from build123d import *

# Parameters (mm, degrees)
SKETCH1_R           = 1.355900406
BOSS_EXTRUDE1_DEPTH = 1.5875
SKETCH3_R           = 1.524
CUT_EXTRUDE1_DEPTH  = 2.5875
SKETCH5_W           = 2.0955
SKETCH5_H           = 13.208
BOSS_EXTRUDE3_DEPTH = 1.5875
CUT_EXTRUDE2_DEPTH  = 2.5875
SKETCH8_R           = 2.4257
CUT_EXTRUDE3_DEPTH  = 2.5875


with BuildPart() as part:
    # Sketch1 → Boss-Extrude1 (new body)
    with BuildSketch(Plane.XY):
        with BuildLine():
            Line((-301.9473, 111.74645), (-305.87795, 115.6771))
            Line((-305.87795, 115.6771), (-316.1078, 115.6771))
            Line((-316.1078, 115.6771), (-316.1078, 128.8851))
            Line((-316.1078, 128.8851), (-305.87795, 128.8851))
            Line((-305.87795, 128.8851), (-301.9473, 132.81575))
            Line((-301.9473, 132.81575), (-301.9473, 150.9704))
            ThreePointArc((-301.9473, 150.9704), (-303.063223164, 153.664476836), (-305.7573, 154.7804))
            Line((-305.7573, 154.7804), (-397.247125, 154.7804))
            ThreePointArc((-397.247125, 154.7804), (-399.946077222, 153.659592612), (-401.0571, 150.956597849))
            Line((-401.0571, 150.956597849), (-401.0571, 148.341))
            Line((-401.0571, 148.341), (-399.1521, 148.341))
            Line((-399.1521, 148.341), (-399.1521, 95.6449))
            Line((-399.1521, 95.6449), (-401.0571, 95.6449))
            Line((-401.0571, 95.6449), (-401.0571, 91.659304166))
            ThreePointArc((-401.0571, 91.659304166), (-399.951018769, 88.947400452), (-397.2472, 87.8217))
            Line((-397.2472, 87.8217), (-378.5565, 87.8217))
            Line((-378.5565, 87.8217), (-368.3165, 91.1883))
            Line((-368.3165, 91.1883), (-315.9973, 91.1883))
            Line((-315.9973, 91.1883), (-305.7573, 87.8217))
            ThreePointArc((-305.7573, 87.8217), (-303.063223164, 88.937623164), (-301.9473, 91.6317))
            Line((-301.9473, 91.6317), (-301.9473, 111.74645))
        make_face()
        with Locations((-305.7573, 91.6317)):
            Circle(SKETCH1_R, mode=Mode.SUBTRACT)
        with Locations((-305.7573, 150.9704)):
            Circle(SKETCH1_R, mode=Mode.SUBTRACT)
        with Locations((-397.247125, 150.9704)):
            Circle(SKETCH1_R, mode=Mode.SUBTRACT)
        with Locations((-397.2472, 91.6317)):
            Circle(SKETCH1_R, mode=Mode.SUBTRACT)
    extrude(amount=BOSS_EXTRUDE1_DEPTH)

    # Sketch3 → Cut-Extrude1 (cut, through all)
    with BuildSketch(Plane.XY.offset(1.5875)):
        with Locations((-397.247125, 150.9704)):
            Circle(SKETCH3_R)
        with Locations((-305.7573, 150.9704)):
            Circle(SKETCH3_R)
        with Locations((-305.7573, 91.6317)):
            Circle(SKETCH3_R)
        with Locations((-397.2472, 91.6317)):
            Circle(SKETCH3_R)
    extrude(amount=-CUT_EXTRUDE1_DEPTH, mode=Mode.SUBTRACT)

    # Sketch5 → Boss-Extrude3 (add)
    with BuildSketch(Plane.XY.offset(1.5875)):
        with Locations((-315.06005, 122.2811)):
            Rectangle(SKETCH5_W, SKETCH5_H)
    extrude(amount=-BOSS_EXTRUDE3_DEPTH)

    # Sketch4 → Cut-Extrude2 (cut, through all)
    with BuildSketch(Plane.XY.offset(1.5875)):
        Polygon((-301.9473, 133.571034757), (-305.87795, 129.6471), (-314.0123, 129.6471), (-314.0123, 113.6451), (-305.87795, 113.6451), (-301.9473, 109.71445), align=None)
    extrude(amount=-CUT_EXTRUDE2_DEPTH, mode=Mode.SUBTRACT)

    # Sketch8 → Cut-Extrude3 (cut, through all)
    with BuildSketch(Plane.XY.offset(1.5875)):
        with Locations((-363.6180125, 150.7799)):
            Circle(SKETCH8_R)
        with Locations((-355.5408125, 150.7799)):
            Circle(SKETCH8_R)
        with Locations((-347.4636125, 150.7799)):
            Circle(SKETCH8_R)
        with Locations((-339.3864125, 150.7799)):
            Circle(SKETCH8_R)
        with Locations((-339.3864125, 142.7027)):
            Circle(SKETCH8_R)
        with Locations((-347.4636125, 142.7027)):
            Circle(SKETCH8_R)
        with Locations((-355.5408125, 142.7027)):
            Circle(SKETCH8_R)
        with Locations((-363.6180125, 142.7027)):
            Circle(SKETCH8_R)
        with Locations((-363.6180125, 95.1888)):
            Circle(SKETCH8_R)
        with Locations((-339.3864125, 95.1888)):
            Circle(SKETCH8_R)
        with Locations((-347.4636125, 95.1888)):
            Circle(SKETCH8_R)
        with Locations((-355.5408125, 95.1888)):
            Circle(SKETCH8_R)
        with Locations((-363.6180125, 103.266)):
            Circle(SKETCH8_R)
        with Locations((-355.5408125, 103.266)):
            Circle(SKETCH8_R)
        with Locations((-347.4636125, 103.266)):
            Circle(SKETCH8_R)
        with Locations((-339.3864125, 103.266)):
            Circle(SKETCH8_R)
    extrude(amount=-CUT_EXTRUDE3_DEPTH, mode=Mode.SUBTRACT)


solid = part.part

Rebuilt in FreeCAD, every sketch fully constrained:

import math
import FreeCAD as App
import Part
import Sketcher

V = App.Vector
Q = App.Units.Quantity

doc = App.newDocument("Part")
body = doc.addObject("PartDesign::Body", "Body")

# Sketch on XY plane
sketch1 = doc.addObject("Sketcher::SketchObject", "Sketch")
body.addObject(sketch1)
sketch1.AttachmentSupport = (doc.XY_Plane, [""])
sketch1.MapMode = "FlatFace"
sketch1.addGeometry([
    Part.LineSegment(V(-301.9473, 111.74645, 0), V(-305.87795, 115.6771, 0)),  # 0
    Part.LineSegment(V(-305.87795, 115.6771, 0), V(-316.1078, 115.6771, 0)),  # 1
    Part.LineSegment(V(-316.1078, 115.6771, 0), V(-316.1078, 128.8851, 0)),  # 2
    Part.LineSegment(V(-316.1078, 128.8851, 0), V(-305.87795, 128.8851, 0)),  # 3
    Part.LineSegment(V(-305.87795, 128.8851, 0), V(-301.9473, 132.81575, 0)),  # 4
    Part.LineSegment(V(-301.9473, 132.81575, 0), V(-301.9473, 150.9704, 0)),  # 5
    Part.ArcOfCircle(Part.Circle(V(-305.7573, 150.9704, 0), V(0, 0, 1), 3.81), math.radians(0), math.radians(90)),  # 6
    Part.LineSegment(V(-305.7573, 154.7804, 0), V(-397.247125, 154.7804, 0)),  # 7
    Part.ArcOfCircle(Part.Circle(V(-397.247125, 150.9704, 0), V(0, 0, 1), 3.81), math.radians(90), math.radians(180.207561)),  # 8
    Part.LineSegment(V(-401.0571, 150.956598, 0), V(-401.0571, 148.341, 0)),  # 9
    Part.LineSegment(V(-401.0571, 148.341, 0), V(-399.1521, 148.341, 0)),  # 10
    Part.LineSegment(V(-399.1521, 148.341, 0), V(-399.1521, 95.6449, 0)),  # 11
    Part.LineSegment(V(-399.1521, 95.6449, 0), V(-401.0571, 95.6449, 0)),  # 12
    Part.LineSegment(V(-401.0571, 95.6449, 0), V(-401.0571, 91.659304, 0)),  # 13
    Part.ArcOfCircle(Part.Circle(V(-397.2472, 91.6317, 0), V(0, 0, 1), 3.81), math.radians(179.584878), math.radians(270)),  # 14
    Part.LineSegment(V(-397.2472, 87.8217, 0), V(-378.5565, 87.8217, 0)),  # 15
    Part.LineSegment(V(-378.5565, 87.8217, 0), V(-368.3165, 91.1883, 0)),  # 16
    Part.LineSegment(V(-368.3165, 91.1883, 0), V(-315.9973, 91.1883, 0)),  # 17
    Part.LineSegment(V(-315.9973, 91.1883, 0), V(-305.7573, 87.8217, 0)),  # 18
    Part.ArcOfCircle(Part.Circle(V(-305.7573, 91.6317, 0), V(0, 0, 1), 3.81), math.radians(-90), math.radians(0)),  # 19
    Part.LineSegment(V(-301.9473, 91.6317, 0), V(-301.9473, 111.74645, 0)),  # 20
    Part.Circle(V(-397.2472, 91.6317, 0), V(0, 0, 1), 1.3559),  # 21
    Part.Circle(V(-305.7573, 91.6317, 0), V(0, 0, 1), 1.3559),  # 22
    Part.Circle(V(-397.247125, 150.9704, 0), V(0, 0, 1), 1.3559),  # 23
    Part.Circle(V(-305.7573, 150.9704, 0), V(0, 0, 1), 1.3559),  # 24
], False)
sketch1.addConstraint([
    Sketcher.Constraint("Coincident", 0, 2, 1, 1),
    Sketcher.Constraint("Coincident", 1, 2, 2, 1),
    Sketcher.Constraint("Coincident", 2, 2, 3, 1),
    Sketcher.Constraint("Coincident", 3, 2, 4, 1),
    Sketcher.Constraint("Coincident", 4, 2, 5, 1),
    Sketcher.Constraint("Tangent", 5, 2, 6, 1),
    Sketcher.Constraint("Tangent", 6, 2, 7, 1),
    Sketcher.Constraint("Tangent", 7, 2, 8, 1),
    Sketcher.Constraint("Coincident", 8, 2, 9, 1),
    Sketcher.Constraint("Coincident", 9, 2, 10, 1),
    Sketcher.Constraint("Coincident", 10, 2, 11, 1),
    Sketcher.Constraint("Coincident", 11, 2, 12, 1),
    Sketcher.Constraint("Coincident", 12, 2, 13, 1),
    Sketcher.Constraint("Coincident", 13, 2, 14, 1),
    Sketcher.Constraint("Tangent", 14, 2, 15, 1),
    Sketcher.Constraint("Coincident", 15, 2, 16, 1),
    Sketcher.Constraint("Coincident", 16, 2, 17, 1),
    Sketcher.Constraint("Coincident", 17, 2, 18, 1),
    Sketcher.Constraint("Coincident", 18, 2, 19, 1),
    Sketcher.Constraint("Tangent", 19, 2, 20, 1),
    Sketcher.Constraint("Coincident", 20, 2, 0, 1),
    Sketcher.Constraint("Horizontal", 1),
    Sketcher.Constraint("Vertical", 2),
    Sketcher.Constraint("Horizontal", 3),
    Sketcher.Constraint("Vertical", 5),
    Sketcher.Constraint("Horizontal", 7),
    Sketcher.Constraint("Vertical", 9),
    Sketcher.Constraint("Horizontal", 10),
    Sketcher.Constraint("Vertical", 11),
    Sketcher.Constraint("Horizontal", 12),
    Sketcher.Constraint("Vertical", 13),
    Sketcher.Constraint("Horizontal", 15),
    Sketcher.Constraint("Horizontal", 17),
    Sketcher.Constraint("Vertical", 20),
    Sketcher.Constraint("Coincident", 21, 3, 14, 3),
    Sketcher.Constraint("Coincident", 22, 3, 19, 3),
    Sketcher.Constraint("Coincident", 23, 3, 8, 3),
    Sketcher.Constraint("Coincident", 24, 3, 6, 3),
    Sketcher.Constraint("Equal", 6, 8),
    Sketcher.Constraint("Equal", 8, 14),
    Sketcher.Constraint("Equal", 14, 19),
    Sketcher.Constraint("Equal", 21, 22),
    Sketcher.Constraint("Equal", 22, 23),
    Sketcher.Constraint("Equal", 23, 24),
    Sketcher.Constraint("Perpendicular", 0, 4),
    Sketcher.Constraint("Horizontal", 14, 3, 19, 3),
    Sketcher.Constraint("Vertical", 6, 3, 19, 3),
    Sketcher.Constraint("Vertical", 0, 2, 3, 2),
    Sketcher.Constraint("Vertical", 9, 2, 12, 2),
    Sketcher.Constraint("Vertical", 6, 2, 18, 2),
    Sketcher.Constraint("Equal", 0, 4),
    Sketcher.Constraint("Equal", 16, 18),
    Sketcher.Constraint("Radius", 6, Q("0.15 in")),
    Sketcher.Constraint("DistanceY", 2, 1, 2, 2, Q("0.52 in")),
    Sketcher.Constraint("Diameter", 21, Q("2.711801 mm")),
    Sketcher.Constraint("DistanceX", 10, 1, 10, 2, Q("0.075 in")),
    Sketcher.Constraint("DistanceY", 14, 3, 11, 2, Q("0.158 in")),
    Sketcher.Constraint("DistanceX", 11, 2, 16, 2, Q("1.214 in")),
    Sketcher.Constraint("DistanceX", 15, 1, 15, 2, Q("18.6907 mm")),
    Sketcher.Constraint("DistanceX", 17, 1, 17, 2, Q("52.3192 mm")),
    Sketcher.Constraint("DistanceY", 11, 2, 11, 1, Q("52.6961 mm")),
    Sketcher.Constraint("DistanceY", 0, 2, 6, 3, Q("1.3895 in")),
    Sketcher.Constraint("DistanceX", 1, 2, 19, 3, Q("0.4075 in")),
    Sketcher.Constraint("DistanceX", 1, 2, 1, 1, Q("10.22985 mm")),
    Sketcher.Constraint("DistanceY", 20, 1, 20, 2, Q("20.11475 mm")),
    Sketcher.Constraint("DistanceX", 6, 3, -1, 1, Q("305.7573 mm")),
    Sketcher.Constraint("DistanceY", -1, 1, 6, 3, Q("150.9704 mm")),
    Sketcher.Constraint("DistanceX", 14, 3, -1, 1, Q("397.2472 mm")),
    Sketcher.Constraint("DistanceY", -1, 1, 16, 2, Q("91.1883 mm")),
    Sketcher.Constraint("DistanceX", 7, 2, 7, 1, Q("91.489825 mm")),
])
pad1 = doc.addObject("PartDesign::Pad", "Pad")
body.addObject(pad1)
pad1.Profile = sketch1
pad1.Length = Q("0.0625 in")

# Sketch on XY plane
sketch2 = doc.addObject("Sketcher::SketchObject", "Sketch001")
body.addObject(sketch2)
sketch2.AttachmentSupport = (doc.XY_Plane, [""])
sketch2.MapMode = "FlatFace"
sketch2.AttachmentOffset = App.Placement(V(0, 0, 0.0625 * 25.4), App.Rotation())
sketch2.addGeometry([
    Part.Circle(V(-397.247125, 150.9704, 0), V(0, 0, 1), 1.524),
    Part.Circle(V(-305.7573, 150.9704, 0), V(0, 0, 1), 1.524),
    Part.Circle(V(-305.7573, 91.6317, 0), V(0, 0, 1), 1.524),
    Part.Circle(V(-397.2472, 91.6317, 0), V(0, 0, 1), 1.524),
], False)
sketch2.addConstraint([
    Sketcher.Constraint("Equal", 0, 1),
    Sketcher.Constraint("Equal", 1, 2),
    Sketcher.Constraint("Equal", 2, 3),
    Sketcher.Constraint("Horizontal", 0, 3, 1, 3),
    Sketcher.Constraint("Horizontal", 2, 3, 3, 3),
    Sketcher.Constraint("Vertical", 1, 3, 2, 3),
    Sketcher.Constraint("Diameter", 0, Q("0.12 in")),
    Sketcher.Constraint("DistanceY", -1, 1, 0, 3, Q("150.9704 mm")),
    Sketcher.Constraint("DistanceX", 1, 3, -1, 1, Q("305.7573 mm")),
    Sketcher.Constraint("DistanceY", -1, 1, 2, 3, Q("91.6317 mm")),
    Sketcher.Constraint("DistanceX", 3, 3, -1, 1, Q("397.2472 mm")),
    Sketcher.Constraint("DistanceX", 0, 3, -1, 1, Q("397.247125 mm")),
])
pocket1 = doc.addObject("PartDesign::Pocket", "Pocket")
body.addObject(pocket1)
pocket1.Profile = sketch2
pocket1.Type = "ThroughAll"

# Sketch on XY plane
sketch3 = doc.addObject("Sketcher::SketchObject", "Sketch002")
body.addObject(sketch3)
sketch3.AttachmentSupport = (doc.XY_Plane, [""])
sketch3.MapMode = "FlatFace"
sketch3.AttachmentOffset = App.Placement(V(0, 0, 0.0625 * 25.4), App.Rotation())
sketch3.addGeometry([
    Part.LineSegment(V(-316.1078, 128.8851, 0), V(-316.1078, 115.6771, 0)),
    Part.LineSegment(V(-316.1078, 115.6771, 0), V(-314.0123, 115.6771, 0)),
    Part.LineSegment(V(-314.0123, 115.6771, 0), V(-314.0123, 128.8851, 0)),
    Part.LineSegment(V(-314.0123, 128.8851, 0), V(-316.1078, 128.8851, 0)),
], False)
sketch3.addConstraint([
    Sketcher.Constraint("Coincident", 0, 2, 1, 1),
    Sketcher.Constraint("Coincident", 1, 2, 2, 1),
    Sketcher.Constraint("Coincident", 2, 2, 3, 1),
    Sketcher.Constraint("Coincident", 3, 2, 0, 1),
    Sketcher.Constraint("Vertical", 0),
    Sketcher.Constraint("Horizontal", 1),
    Sketcher.Constraint("Vertical", 2),
    Sketcher.Constraint("Horizontal", 3),
    Sketcher.Constraint("DistanceY", 0, 2, 0, 1, Q("0.52 in")),
    Sketcher.Constraint("DistanceX", 1, 1, 1, 2, Q("0.0825 in")),
    Sketcher.Constraint("DistanceX", 0, 2, -1, 1, Q("316.1078 mm")),
    Sketcher.Constraint("DistanceY", -1, 1, 0, 2, Q("115.6771 mm")),
])
pad2 = doc.addObject("PartDesign::Pad", "Pad001")
body.addObject(pad2)
pad2.Profile = sketch3
pad2.Length = Q("0.0625 in")
pad2.Reversed = True

# Sketch on XY plane
sketch4 = doc.addObject("Sketcher::SketchObject", "Sketch003")
body.addObject(sketch4)
sketch4.AttachmentSupport = (doc.XY_Plane, [""])
sketch4.MapMode = "FlatFace"
sketch4.AttachmentOffset = App.Placement(V(0, 0, 0.0625 * 25.4), App.Rotation())
sketch4.addGeometry([
    Part.LineSegment(V(-301.9473, 133.571035, 0), V(-305.87795, 129.6471, 0)),  # 0
    Part.LineSegment(V(-305.87795, 129.6471, 0), V(-314.0123, 129.6471, 0)),  # 1
    Part.LineSegment(V(-314.0123, 129.6471, 0), V(-314.0123, 113.6451, 0)),  # 2
    Part.LineSegment(V(-314.0123, 113.6451, 0), V(-305.87795, 113.6451, 0)),  # 3
    Part.LineSegment(V(-305.87795, 113.6451, 0), V(-301.9473, 109.71445, 0)),  # 4
    Part.LineSegment(V(-301.9473, 109.71445, 0), V(-301.9473, 133.571035, 0)),  # 5
], False)
sketch4.addConstraint([
    Sketcher.Constraint("Coincident", 0, 2, 1, 1),
    Sketcher.Constraint("Coincident", 1, 2, 2, 1),
    Sketcher.Constraint("Coincident", 2, 2, 3, 1),
    Sketcher.Constraint("Coincident", 3, 2, 4, 1),
    Sketcher.Constraint("Coincident", 4, 2, 5, 1),
    Sketcher.Constraint("Coincident", 5, 2, 0, 1),
    Sketcher.Constraint("Horizontal", 1),
    Sketcher.Constraint("Vertical", 2),
    Sketcher.Constraint("Horizontal", 3),
    Sketcher.Constraint("Vertical", 5),
    Sketcher.Constraint("Vertical", 0, 2, 3, 2),
    Sketcher.Constraint("Angle", 4, Q("-45 deg")),
    Sketcher.Constraint("DistanceY", 2, 2, 2, 1, Q("0.63 in")),
    Sketcher.Constraint("DistanceX", 2, 2, 4, 2, Q("0.475 in")),
    Sketcher.Constraint("DistanceX", 1, 2, 1, 1, Q("8.13435 mm")),
    Sketcher.Constraint("DistanceY", -1, 1, 0, 2, Q("129.6471 mm")),
    Sketcher.Constraint("DistanceX", 1, 2, -1, 1, Q("314.0123 mm")),
    Sketcher.Constraint("DistanceY", 5, 1, 5, 2, Q("23.856585 mm")),
])
pocket2 = doc.addObject("PartDesign::Pocket", "Pocket001")
body.addObject(pocket2)
pocket2.Profile = sketch4
pocket2.Type = "ThroughAll"

# Sketch on XY plane
sketch5 = doc.addObject("Sketcher::SketchObject", "Sketch004")
body.addObject(sketch5)
sketch5.AttachmentSupport = (doc.XY_Plane, [""])
sketch5.MapMode = "FlatFace"
sketch5.AttachmentOffset = App.Placement(V(0, 0, 0.0625 * 25.4), App.Rotation())
sketch5.addGeometry([
    Part.Circle(V(-363.618013, 150.7799, 0), V(0, 0, 1), 2.4257),  # 0
    Part.Circle(V(-355.540813, 150.7799, 0), V(0, 0, 1), 2.4257),  # 1
    Part.Circle(V(-347.463613, 150.7799, 0), V(0, 0, 1), 2.4257),  # 2
    Part.Circle(V(-339.386413, 150.7799, 0), V(0, 0, 1), 2.4257),  # 3
    Part.Circle(V(-339.386413, 142.7027, 0), V(0, 0, 1), 2.4257),  # 4
    Part.Circle(V(-347.463613, 142.7027, 0), V(0, 0, 1), 2.4257),  # 5
    Part.Circle(V(-355.540813, 142.7027, 0), V(0, 0, 1), 2.4257),  # 6
    Part.Circle(V(-363.618013, 142.7027, 0), V(0, 0, 1), 2.4257),  # 7
    Part.Circle(V(-363.618013, 95.1888, 0), V(0, 0, 1), 2.4257),  # 8
    Part.Circle(V(-339.386413, 95.1888, 0), V(0, 0, 1), 2.4257),  # 9
    Part.Circle(V(-347.463613, 95.1888, 0), V(0, 0, 1), 2.4257),  # 10
    Part.Circle(V(-355.540813, 95.1888, 0), V(0, 0, 1), 2.4257),  # 11
    Part.Circle(V(-363.618013, 103.266, 0), V(0, 0, 1), 2.4257),  # 12
    Part.Circle(V(-355.540813, 103.266, 0), V(0, 0, 1), 2.4257),  # 13
    Part.Circle(V(-347.463613, 103.266, 0), V(0, 0, 1), 2.4257),  # 14
    Part.Circle(V(-339.386413, 103.266, 0), V(0, 0, 1), 2.4257),  # 15
], False)
sketch5.addConstraint([
    Sketcher.Constraint("Equal", 0, 1),
    Sketcher.Constraint("Equal", 1, 2),
    Sketcher.Constraint("Equal", 2, 3),
    Sketcher.Constraint("Equal", 3, 4),
    Sketcher.Constraint("Equal", 4, 5),
    Sketcher.Constraint("Equal", 5, 6),
    Sketcher.Constraint("Equal", 6, 7),
    Sketcher.Constraint("Equal", 7, 8),
    Sketcher.Constraint("Equal", 8, 9),
    Sketcher.Constraint("Equal", 9, 10),
    Sketcher.Constraint("Equal", 10, 11),
    Sketcher.Constraint("Equal", 11, 12),
    Sketcher.Constraint("Equal", 12, 13),
    Sketcher.Constraint("Equal", 13, 14),
    Sketcher.Constraint("Equal", 14, 15),
    Sketcher.Constraint("Horizontal", 0, 3, 1, 3),
    Sketcher.Constraint("Horizontal", 1, 3, 2, 3),
    Sketcher.Constraint("Horizontal", 2, 3, 3, 3),
    Sketcher.Constraint("Horizontal", 4, 3, 5, 3),
    Sketcher.Constraint("Horizontal", 5, 3, 6, 3),
    Sketcher.Constraint("Horizontal", 6, 3, 7, 3),
    Sketcher.Constraint("Horizontal", 8, 3, 9, 3),
    Sketcher.Constraint("Horizontal", 9, 3, 10, 3),
    Sketcher.Constraint("Horizontal", 10, 3, 11, 3),
    Sketcher.Constraint("Horizontal", 12, 3, 13, 3),
    Sketcher.Constraint("Horizontal", 13, 3, 14, 3),
    Sketcher.Constraint("Horizontal", 14, 3, 15, 3),
    Sketcher.Constraint("Vertical", 3, 3, 4, 3),
    Sketcher.Constraint("Vertical", 2, 3, 5, 3),
    Sketcher.Constraint("Vertical", 1, 3, 6, 3),
    Sketcher.Constraint("Vertical", 0, 3, 7, 3),
    Sketcher.Constraint("Vertical", 7, 3, 8, 3),
    Sketcher.Constraint("Vertical", 4, 3, 9, 3),
    Sketcher.Constraint("Vertical", 5, 3, 10, 3),
    Sketcher.Constraint("Vertical", 6, 3, 11, 3),
    Sketcher.Constraint("Vertical", 8, 3, 12, 3),
    Sketcher.Constraint("Vertical", 11, 3, 13, 3),
    Sketcher.Constraint("Vertical", 10, 3, 14, 3),
    Sketcher.Constraint("Vertical", 9, 3, 15, 3),
    Sketcher.Constraint("Diameter", 0, Q("0.191 in")),
    Sketcher.Constraint("DistanceX", 0, 3, 1, 3, Q("0.318 in")),
    Sketcher.Constraint("DistanceX", 1, 3, 2, 3, Q("0.318 in")),
    Sketcher.Constraint("DistanceX", 2, 3, 3, 3, Q("0.318 in")),
    Sketcher.Constraint("DistanceY", 4, 3, 3, 3, Q("0.318 in")),
    Sketcher.Constraint("DistanceY", 8, 3, 12, 3, Q("0.318 in")),
    Sketcher.Constraint("DistanceY", -1, 1, 0, 3, Q("150.7799 mm")),
    Sketcher.Constraint("DistanceY", -1, 1, 8, 3, Q("95.1888 mm")),
    Sketcher.Constraint("DistanceX", 0, 3, -1, 1, Q("363.618013 mm")),
])
pocket3 = doc.addObject("PartDesign::Pocket", "Pocket002")
body.addObject(pocket3)
pocket3.Profile = sketch5
pocket3.Type = "ThroughAll"

doc.recompute()
